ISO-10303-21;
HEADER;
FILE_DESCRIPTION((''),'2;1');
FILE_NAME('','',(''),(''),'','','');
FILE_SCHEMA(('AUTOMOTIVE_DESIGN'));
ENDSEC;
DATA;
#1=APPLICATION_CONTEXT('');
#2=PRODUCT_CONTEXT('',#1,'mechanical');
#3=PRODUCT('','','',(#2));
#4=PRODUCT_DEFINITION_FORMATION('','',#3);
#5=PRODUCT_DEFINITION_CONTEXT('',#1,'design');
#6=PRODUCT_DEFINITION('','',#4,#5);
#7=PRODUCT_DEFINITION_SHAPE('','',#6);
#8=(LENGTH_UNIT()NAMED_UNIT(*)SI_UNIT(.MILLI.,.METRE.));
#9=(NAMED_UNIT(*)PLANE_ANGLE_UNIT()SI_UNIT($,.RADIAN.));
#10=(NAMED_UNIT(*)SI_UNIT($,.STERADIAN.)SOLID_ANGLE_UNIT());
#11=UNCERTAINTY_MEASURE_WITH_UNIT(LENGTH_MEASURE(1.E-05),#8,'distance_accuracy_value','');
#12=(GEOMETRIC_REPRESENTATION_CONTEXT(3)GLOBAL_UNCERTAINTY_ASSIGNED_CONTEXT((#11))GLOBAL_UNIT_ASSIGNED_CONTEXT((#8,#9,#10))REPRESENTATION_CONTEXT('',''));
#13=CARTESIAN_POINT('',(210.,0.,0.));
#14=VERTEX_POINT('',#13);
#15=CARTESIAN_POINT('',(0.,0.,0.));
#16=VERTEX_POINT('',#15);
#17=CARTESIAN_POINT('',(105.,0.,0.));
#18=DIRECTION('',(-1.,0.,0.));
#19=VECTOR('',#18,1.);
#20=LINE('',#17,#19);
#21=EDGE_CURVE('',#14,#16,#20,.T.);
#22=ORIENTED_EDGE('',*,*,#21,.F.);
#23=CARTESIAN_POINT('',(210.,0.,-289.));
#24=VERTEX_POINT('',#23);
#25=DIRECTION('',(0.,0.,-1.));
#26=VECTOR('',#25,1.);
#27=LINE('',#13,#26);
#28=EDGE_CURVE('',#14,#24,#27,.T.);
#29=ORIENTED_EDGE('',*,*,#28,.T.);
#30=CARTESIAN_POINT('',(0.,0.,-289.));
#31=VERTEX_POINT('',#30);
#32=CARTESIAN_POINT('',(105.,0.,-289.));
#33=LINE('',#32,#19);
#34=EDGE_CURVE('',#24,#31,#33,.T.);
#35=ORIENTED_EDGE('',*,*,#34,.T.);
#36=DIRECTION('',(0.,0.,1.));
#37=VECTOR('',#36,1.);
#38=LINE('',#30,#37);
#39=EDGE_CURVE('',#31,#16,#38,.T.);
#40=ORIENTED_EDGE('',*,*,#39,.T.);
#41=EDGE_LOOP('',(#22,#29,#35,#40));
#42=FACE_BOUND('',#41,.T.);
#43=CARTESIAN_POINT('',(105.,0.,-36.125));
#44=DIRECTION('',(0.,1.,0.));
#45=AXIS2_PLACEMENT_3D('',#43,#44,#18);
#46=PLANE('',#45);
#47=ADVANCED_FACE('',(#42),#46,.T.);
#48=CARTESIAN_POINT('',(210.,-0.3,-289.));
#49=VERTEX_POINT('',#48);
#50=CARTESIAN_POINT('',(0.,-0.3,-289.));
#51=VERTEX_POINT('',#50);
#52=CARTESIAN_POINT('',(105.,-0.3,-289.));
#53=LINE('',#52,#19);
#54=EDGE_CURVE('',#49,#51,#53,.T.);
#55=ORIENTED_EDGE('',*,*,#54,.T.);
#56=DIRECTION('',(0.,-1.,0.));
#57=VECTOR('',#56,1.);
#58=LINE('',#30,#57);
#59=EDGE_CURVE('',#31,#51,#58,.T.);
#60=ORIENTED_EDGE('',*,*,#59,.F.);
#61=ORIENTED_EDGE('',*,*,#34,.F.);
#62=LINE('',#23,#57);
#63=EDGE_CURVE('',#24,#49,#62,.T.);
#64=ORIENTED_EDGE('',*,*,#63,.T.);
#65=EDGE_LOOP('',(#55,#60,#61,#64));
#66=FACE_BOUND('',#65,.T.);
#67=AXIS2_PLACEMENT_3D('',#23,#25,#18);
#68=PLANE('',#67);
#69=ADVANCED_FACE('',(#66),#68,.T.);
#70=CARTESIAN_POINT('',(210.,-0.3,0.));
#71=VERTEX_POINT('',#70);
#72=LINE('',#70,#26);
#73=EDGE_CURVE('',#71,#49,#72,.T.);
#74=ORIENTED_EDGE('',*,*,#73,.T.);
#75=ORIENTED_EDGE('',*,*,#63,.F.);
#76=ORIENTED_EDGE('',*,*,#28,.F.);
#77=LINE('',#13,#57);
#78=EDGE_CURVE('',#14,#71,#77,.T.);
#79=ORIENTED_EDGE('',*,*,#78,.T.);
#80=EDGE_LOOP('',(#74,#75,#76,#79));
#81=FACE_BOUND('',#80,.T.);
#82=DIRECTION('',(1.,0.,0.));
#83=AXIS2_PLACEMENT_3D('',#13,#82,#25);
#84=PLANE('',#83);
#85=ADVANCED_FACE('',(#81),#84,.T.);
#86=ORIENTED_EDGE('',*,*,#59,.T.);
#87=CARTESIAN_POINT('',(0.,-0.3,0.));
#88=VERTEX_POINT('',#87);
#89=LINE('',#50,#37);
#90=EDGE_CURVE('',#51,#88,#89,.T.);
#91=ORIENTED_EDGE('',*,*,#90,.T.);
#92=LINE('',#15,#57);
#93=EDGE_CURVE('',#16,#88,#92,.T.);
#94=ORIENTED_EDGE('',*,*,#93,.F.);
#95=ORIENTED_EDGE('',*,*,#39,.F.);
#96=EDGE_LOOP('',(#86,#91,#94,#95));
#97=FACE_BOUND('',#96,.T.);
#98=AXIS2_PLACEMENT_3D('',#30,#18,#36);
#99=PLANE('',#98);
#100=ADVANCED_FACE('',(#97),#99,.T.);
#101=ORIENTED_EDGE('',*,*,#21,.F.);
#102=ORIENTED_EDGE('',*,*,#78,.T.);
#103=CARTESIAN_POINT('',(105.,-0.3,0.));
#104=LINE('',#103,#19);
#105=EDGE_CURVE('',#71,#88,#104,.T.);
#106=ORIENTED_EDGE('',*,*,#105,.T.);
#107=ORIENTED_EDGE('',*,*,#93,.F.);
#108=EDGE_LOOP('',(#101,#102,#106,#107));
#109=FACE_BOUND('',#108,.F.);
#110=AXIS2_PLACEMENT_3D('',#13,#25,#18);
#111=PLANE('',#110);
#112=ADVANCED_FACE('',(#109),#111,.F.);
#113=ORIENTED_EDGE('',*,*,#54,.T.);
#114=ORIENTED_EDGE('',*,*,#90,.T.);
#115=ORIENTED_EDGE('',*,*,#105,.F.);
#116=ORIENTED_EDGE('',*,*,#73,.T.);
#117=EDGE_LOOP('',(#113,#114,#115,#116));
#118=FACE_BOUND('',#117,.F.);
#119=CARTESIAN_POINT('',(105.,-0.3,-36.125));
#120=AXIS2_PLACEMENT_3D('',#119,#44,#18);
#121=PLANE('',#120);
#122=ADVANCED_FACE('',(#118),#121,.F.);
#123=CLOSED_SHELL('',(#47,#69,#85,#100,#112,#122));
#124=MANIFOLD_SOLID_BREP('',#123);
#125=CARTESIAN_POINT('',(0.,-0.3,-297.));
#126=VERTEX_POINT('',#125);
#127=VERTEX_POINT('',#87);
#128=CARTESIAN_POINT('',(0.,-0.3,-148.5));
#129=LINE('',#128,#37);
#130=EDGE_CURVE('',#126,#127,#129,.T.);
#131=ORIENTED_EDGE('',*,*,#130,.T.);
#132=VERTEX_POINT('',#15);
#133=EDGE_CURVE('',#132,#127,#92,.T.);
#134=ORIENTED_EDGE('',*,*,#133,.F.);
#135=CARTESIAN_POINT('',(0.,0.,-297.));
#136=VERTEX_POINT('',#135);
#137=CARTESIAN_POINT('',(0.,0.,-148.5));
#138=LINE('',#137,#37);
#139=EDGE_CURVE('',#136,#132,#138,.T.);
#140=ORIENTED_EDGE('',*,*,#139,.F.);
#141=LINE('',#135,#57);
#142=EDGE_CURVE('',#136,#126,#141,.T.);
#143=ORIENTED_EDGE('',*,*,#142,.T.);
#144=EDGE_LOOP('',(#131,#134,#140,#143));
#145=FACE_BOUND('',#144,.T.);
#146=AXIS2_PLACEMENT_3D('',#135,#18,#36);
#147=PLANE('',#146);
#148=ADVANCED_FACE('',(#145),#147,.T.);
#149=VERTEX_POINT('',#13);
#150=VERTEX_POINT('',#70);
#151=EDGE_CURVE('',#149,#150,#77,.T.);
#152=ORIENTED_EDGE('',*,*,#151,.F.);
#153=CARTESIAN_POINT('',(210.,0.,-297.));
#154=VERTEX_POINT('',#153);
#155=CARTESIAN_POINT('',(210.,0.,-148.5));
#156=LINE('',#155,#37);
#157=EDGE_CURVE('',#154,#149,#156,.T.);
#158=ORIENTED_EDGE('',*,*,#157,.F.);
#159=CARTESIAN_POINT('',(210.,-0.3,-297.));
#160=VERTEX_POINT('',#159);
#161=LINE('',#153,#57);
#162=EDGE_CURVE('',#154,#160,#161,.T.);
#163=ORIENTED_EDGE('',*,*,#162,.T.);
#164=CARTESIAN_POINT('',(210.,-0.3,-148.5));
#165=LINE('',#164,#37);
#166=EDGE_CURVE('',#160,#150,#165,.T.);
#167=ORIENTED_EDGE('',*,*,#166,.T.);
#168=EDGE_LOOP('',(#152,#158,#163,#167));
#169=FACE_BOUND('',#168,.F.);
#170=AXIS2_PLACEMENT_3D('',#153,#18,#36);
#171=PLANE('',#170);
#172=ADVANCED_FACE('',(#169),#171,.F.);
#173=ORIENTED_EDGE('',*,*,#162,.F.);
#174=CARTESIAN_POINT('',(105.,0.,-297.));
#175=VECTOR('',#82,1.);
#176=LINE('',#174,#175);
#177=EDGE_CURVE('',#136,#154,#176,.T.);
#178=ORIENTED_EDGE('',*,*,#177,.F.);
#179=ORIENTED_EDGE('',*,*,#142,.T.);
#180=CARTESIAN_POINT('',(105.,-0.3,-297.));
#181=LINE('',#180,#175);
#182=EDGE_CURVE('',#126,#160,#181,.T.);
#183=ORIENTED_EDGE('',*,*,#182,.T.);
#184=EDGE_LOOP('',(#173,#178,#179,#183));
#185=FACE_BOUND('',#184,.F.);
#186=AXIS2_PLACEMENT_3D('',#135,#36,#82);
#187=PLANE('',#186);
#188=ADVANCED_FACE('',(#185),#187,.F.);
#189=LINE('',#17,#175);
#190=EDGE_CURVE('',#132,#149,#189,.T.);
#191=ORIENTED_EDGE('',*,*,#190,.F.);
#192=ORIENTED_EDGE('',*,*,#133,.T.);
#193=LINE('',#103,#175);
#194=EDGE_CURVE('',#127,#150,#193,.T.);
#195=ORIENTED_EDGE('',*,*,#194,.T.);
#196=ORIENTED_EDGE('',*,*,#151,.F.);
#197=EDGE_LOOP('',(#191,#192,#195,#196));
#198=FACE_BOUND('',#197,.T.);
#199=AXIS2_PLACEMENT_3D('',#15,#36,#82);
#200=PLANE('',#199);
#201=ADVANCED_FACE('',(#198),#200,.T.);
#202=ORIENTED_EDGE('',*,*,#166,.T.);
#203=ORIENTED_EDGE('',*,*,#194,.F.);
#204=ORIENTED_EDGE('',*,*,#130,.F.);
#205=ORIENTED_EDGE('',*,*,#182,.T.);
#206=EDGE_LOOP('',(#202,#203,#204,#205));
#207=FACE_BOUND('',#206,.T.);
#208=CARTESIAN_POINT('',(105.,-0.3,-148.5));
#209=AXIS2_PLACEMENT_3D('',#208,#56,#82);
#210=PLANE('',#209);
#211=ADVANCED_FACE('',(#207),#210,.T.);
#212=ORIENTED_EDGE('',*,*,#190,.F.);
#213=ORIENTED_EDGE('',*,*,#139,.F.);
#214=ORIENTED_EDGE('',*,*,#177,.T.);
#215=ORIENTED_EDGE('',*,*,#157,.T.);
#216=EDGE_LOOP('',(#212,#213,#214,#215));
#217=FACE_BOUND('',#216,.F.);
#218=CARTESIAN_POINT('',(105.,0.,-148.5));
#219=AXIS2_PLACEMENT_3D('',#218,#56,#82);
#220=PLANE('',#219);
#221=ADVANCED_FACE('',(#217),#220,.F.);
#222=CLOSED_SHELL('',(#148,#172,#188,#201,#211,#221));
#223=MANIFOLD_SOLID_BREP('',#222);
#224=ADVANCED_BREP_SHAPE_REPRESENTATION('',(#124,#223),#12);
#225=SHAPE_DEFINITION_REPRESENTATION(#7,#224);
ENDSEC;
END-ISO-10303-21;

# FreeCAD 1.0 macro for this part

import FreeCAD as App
import Part
import Sketcher
Q = App.Units.Quantity


def add_polygon(sketch, points):
    """Adds a closed chain of lines whose ends are joined by coincident constraints."""
    first, n = sketch.GeometryCount, len(points)
    for a, b in zip(points, points[1:] + points[:1]):
        sketch.addGeometry(Part.LineSegment(App.Vector(*a, 0), App.Vector(*b, 0)), False)
    for i in range(n):
        sketch.addConstraint(Sketcher.Constraint("Coincident", first + i, 2, first + (i + 1) % n, 1))

doc = App.newDocument("Part")
body = doc.addObject("PartDesign::Body", "Body")

# Sketch on XZ plane
sketch1 = body.newObject("Sketcher::SketchObject", "Sketch")
sketch1.AttachmentSupport = (doc.getObject("XZ_Plane"), [""])
sketch1.MapMode = "FlatFace"
add_polygon(sketch1, [(0, 0), (0, -297), (210, -297), (210, 0)])  # lines 0-3
sketch1.addConstraint([
    Sketcher.Constraint("Vertical", 0),
    Sketcher.Constraint("Horizontal", 1),
    Sketcher.Constraint("Vertical", 2),
    Sketcher.Constraint("Horizontal", 3),
    Sketcher.Constraint("Coincident", 3, 2, -1, 1),
    Sketcher.Constraint("DistanceX", 1, 1, 1, 2, Q("210 mm")),
    Sketcher.Constraint("DistanceY", 0, 2, 0, 1, Q("297 mm")),
])
pad1 = body.newObject("PartDesign::Pad", "Pad")
pad1.Profile = sketch1
pad1.Length = 0.3
body2 = doc.addObject("PartDesign::Body", "Body001")

# Sketch on XZ plane
sketch2 = body2.newObject("Sketcher::SketchObject", "Sketch001")
sketch2.AttachmentSupport = (doc.getObject("XZ_Plane001"), [""])
sketch2.MapMode = "FlatFace"
add_polygon(sketch2, [(210, 0), (210, -289), (0, -289), (0, 0)])  # lines 0-3
sketch2.addConstraint([
    Sketcher.Constraint("Vertical", 0),
    Sketcher.Constraint("Horizontal", 1),
    Sketcher.Constraint("Vertical", 2),
    Sketcher.Constraint("Horizontal", 3),
    Sketcher.Constraint("Coincident", 2, 2, -1, 1),
    Sketcher.Constraint("DistanceX", 1, 2, 1, 1, Q("210 mm")),
    Sketcher.Constraint("DistanceY", 0, 2, 0, 1, Q("289 mm")),
])
pad2 = body2.newObject("PartDesign::Pad", "Pad001")
pad2.Profile = sketch2
pad2.Length = 0.3

doc.recompute()
